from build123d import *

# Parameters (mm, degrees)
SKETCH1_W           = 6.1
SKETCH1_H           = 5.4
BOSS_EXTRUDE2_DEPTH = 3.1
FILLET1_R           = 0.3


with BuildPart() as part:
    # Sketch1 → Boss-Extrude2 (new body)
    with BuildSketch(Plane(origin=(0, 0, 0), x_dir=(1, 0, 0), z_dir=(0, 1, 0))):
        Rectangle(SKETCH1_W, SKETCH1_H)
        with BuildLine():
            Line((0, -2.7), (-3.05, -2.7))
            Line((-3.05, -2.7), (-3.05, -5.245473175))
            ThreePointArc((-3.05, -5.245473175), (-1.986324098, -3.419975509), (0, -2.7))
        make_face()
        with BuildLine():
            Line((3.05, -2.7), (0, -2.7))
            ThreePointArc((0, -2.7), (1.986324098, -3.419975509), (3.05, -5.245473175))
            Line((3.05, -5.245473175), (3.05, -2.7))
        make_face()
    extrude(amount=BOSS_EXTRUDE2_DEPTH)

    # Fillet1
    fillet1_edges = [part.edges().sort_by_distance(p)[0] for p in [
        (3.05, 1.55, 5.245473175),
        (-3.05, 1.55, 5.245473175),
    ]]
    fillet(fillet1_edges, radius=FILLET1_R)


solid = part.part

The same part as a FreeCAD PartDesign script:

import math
import FreeCAD as App
import Part
import Sketcher

V = App.Vector
Q = App.Units.Quantity


def edges_at(feature, points):
    """Names of the edges that pass closest to the given points."""
    edges = feature.Shape.Edges
    near = lambda p: min(range(len(edges)), key=lambda i: edges[i].distToShape(Part.Vertex(*p))[0])
    return sorted({f"Edge{near(p) + 1}" for p in points})

doc = App.newDocument("Part")
body = doc.addObject("PartDesign::Body", "Body")

sketch1 = doc.addObject("Sketcher::SketchObject", "Sketch")
body.addObject(sketch1)
sketch1.AttachmentSupport = (doc.XZ_Plane, [""])
sketch1.MapMode = "FlatFace"
sketch1.addGeometry([
    Part.LineSegment(V(-3, -2.7, 0), V(-3, 5.2, 0)),
    Part.ArcOfCircle(Part.Circle(V(0, 5.8, 0), V(0, 0, 1), 3.1), math.radians(-170), math.radians(-90)),
    Part.ArcOfCircle(Part.Circle(V(0, 5.8, 0), V(0, 0, 1), 3.1), math.radians(-90), math.radians(-10)),
    Part.LineSegment(V(3, 5.2, 0), V(3, -2.7, 0)),
    Part.LineSegment(V(3, -2.7, 0), V(-3, -2.7, 0)),
], False)
sketch1.addConstraint([
    Sketcher.Constraint("Coincident", 0, 2, 1, 1),
    Sketcher.Constraint("Tangent", 1, 2, 2, 1),
    Sketcher.Constraint("Coincident", 2, 2, 3, 1),
    Sketcher.Constraint("Coincident", 3, 2, 4, 1),
    Sketcher.Constraint("Coincident", 4, 2, 0, 1),
    Sketcher.Constraint("Vertical", 0),
    Sketcher.Constraint("Vertical", 3),
    Sketcher.Constraint("Horizontal", 4),
    Sketcher.Constraint("Equal", 1, 2),
    Sketcher.Constraint("Symmetric", 0, 2, 2, 2, -2),
    Sketcher.Constraint("PointOnObject", 1, 2, -2),
    Sketcher.Constraint("Radius", 1, Q("3.1 mm")),
    Sketcher.Constraint("DistanceX", 4, 2, 4, 1, Q("6.1 mm")),
    Sketcher.Constraint("DistanceY", -1, 1, 1, 3, Q("5.8 mm")),
    Sketcher.Constraint("DistanceY", 3, 2, -1, 1, Q("2.7 mm")),
])
pad1 = doc.addObject("PartDesign::Pad", "Pad")
body.addObject(pad1)
pad1.Profile = sketch1
pad1.Length = 3.1
pad1.Reversed = True
doc.recompute()

fillet = doc.addObject("PartDesign::Fillet", "Fillet")
body.addObject(fillet)
fillet.Base = (pad1, edges_at(pad1, [(3.05, 1.55, 5.245), (-3.05, 1.55, 5.245)]))
fillet.Radius = 0.3

doc.recompute()
